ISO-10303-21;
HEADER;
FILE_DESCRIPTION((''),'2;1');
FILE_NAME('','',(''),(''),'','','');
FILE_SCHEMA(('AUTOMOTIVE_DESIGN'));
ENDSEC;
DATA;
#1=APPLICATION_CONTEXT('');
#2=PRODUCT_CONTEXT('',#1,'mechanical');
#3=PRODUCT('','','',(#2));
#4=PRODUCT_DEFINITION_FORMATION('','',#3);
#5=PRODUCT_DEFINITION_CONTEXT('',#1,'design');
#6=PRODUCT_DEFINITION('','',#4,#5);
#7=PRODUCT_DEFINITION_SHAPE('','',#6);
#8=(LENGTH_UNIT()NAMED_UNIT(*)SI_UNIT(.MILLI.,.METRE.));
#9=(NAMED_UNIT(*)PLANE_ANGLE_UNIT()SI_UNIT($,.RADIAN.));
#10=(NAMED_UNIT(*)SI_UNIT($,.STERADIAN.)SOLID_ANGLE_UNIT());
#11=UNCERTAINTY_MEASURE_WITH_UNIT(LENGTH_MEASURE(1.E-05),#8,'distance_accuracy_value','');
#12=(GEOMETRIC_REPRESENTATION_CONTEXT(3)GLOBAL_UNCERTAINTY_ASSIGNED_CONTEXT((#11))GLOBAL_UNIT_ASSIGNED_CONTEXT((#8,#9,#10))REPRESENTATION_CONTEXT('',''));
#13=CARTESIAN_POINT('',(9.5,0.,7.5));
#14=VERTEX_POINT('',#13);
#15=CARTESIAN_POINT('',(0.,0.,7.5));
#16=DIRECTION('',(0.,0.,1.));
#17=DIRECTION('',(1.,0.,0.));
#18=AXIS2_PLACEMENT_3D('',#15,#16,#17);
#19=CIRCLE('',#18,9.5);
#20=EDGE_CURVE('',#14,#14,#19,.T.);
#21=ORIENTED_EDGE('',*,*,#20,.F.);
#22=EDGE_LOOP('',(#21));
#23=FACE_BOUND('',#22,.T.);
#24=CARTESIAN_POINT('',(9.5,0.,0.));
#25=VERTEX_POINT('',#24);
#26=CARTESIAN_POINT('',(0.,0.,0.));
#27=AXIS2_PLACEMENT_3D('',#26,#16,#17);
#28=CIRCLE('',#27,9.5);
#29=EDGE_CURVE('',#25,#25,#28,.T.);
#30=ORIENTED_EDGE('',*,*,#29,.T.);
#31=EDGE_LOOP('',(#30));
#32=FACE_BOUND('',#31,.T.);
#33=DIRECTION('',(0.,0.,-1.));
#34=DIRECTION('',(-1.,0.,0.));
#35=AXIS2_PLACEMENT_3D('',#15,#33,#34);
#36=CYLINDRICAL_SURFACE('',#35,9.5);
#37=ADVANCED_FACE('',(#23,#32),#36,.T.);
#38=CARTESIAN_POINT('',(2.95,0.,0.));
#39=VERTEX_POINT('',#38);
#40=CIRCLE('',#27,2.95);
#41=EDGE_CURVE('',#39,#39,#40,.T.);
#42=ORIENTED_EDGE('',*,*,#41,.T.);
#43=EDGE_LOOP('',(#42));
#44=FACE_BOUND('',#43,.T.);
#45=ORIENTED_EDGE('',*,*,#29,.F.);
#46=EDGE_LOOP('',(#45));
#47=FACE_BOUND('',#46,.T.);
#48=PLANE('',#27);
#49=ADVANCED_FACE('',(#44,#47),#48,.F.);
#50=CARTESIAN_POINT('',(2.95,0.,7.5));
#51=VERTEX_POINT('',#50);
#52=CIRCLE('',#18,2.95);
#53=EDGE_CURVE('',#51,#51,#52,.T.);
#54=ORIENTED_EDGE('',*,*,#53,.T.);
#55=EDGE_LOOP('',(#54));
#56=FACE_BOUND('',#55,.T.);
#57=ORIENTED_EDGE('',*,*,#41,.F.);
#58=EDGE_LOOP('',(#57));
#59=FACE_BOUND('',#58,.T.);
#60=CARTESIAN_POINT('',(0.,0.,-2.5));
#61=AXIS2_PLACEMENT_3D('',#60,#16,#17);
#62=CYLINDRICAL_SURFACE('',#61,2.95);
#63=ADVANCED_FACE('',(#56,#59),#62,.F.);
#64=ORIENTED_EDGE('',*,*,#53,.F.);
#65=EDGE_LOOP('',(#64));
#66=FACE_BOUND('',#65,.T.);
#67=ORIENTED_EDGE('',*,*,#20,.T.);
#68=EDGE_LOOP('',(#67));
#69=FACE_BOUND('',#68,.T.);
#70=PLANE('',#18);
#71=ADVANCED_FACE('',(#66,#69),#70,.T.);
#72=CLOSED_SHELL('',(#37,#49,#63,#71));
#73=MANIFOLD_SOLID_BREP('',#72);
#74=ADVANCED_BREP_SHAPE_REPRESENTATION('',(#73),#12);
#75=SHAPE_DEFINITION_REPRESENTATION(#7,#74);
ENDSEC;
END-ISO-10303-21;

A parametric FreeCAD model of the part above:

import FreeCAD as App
import Part
import Sketcher
from FreeCAD import Vector
Q = App.Units.Quantity

doc = App.newDocument("Part")
params = doc.addObject("Spreadsheet::Sheet", "Params")
for row, (alias, value) in enumerate([
    ("sketch1_diameter", "19 mm"),
    ("pad1_length", "7.5 mm"),
    ("sketch2_diameter", "5.9 mm"),
    ("pocket1_length", "10 mm"),
], start=1):
    params.set(f"A{row}", alias)
    params.set(f"B{row}", "=" + value)
    params.setAlias(f"B{row}", alias)

body = doc.addObject("PartDesign::Body", "Body")

# Sketch on XY plane
sketch1 = doc.addObject("Sketcher::SketchObject", "Sketch")
body.addObject(sketch1)
sketch1.AttachmentSupport = (doc.XY_Plane, [""])
sketch1.MapMode = "FlatFace"
sketch1.addGeometry(Part.Circle(Vector(0, 0, 0), Vector(0, 0, 1), 10), False)
sketch1.addConstraint([
    Sketcher.Constraint("Coincident", 0, 3, -1, 1),
    Sketcher.Constraint("Diameter", 0, Q("19 mm")),
])
sketch1.setExpression("Constraints[1]", "Params.sketch1_diameter")
pad1 = doc.addObject("PartDesign::Pad", "Pad")
body.addObject(pad1)
pad1.Profile = sketch1
pad1.setExpression("Length", "Params.pad1_length")

# Sketch on XY plane
sketch2 = doc.addObject("Sketcher::SketchObject", "Sketch001")
body.addObject(sketch2)
sketch2.AttachmentSupport = (doc.XY_Plane, [""])
sketch2.MapMode = "FlatFace"
sketch2.AttachmentOffset = App.Placement(Vector(0, 0, 7.5), App.Rotation())
sketch2.addGeometry(Part.Circle(Vector(0, 0, 0), Vector(0, 0, 1), 3), False)
sketch2.addConstraint([
    Sketcher.Constraint("Coincident", 0, 3, -1, 1),
    Sketcher.Constraint("Diameter", 0, Q("5.9 mm")),
])
sketch2.setExpression("Constraints[1]", "Params.sketch2_diameter")
pocket1 = doc.addObject("PartDesign::Pocket", "Pocket")
body.addObject(pocket1)
pocket1.Profile = sketch2
pocket1.setExpression("Length", "Params.pocket1_length")

doc.recompute()
